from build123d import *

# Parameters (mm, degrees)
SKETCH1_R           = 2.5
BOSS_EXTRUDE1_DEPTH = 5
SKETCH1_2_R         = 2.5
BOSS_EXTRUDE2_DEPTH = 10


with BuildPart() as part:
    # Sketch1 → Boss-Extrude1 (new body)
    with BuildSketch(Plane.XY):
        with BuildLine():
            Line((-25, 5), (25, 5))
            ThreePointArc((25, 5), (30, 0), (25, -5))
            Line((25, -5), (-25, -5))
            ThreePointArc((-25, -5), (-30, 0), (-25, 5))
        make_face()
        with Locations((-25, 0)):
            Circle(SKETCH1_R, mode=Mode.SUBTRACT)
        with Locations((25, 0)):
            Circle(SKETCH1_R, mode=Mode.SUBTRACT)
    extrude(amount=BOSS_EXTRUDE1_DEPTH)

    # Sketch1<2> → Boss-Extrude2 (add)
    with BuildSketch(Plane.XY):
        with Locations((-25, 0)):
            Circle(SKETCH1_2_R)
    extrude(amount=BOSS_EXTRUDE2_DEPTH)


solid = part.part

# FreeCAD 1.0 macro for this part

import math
import FreeCAD as App
import Part
import Sketcher

doc = App.newDocument("Part")
params = doc.addObject("Spreadsheet::Sheet", "Params")
for row, (alias, value) in enumerate([
    ("sketch1_diameter", "5 mm"),
    ("sketch1_radius", "5 mm"),
    ("sketch1_width", "50 mm"),
    ("pad1_length", "5 mm"),
    ("sketch2_diameter", "5 mm"),
    ("pad2_length", "10 mm"),
], start=1):
    params.set(f"A{row}", alias)
    params.set(f"B{row}", "=" + value)
    params.setAlias(f"B{row}", alias)

body = doc.addObject("PartDesign::Body", "Body")

sketch1 = body.newObject("Sketcher::SketchObject", "Sketch")
sketch1.AttachmentSupport = (doc.getObject("XY_Plane"), [""])
sketch1.MapMode = "FlatFace"
sketch1.addGeometry([
    Part.LineSegment(App.Vector(25, 5, 0), App.Vector(-25, 5, 0)),
    Part.ArcOfCircle(Part.Circle(App.Vector(-25, 0, 0), App.Vector(0, 0, 1), 5), math.radians(90), math.radians(270)),
    Part.LineSegment(App.Vector(-25, -5, 0), App.Vector(25, -5, 0)),
    Part.ArcOfCircle(Part.Circle(App.Vector(25, 0, 0), App.Vector(0, 0, 1), 5), math.radians(-90), math.radians(90)),
    Part.Circle(App.Vector(25, 0, 0), App.Vector(0, 0, 1), 2.5),
    Part.Circle(App.Vector(-25, 0, 0), App.Vector(0, 0, 1), 2.5),
], False)
sketch1.addConstraint([
    Sketcher.Constraint("Tangent", 0, 2, 1, 1),
    Sketcher.Constraint("Tangent", 1, 2, 2, 1),
    Sketcher.Constraint("Tangent", 2, 2, 3, 1),
    Sketcher.Constraint("Tangent", 3, 2, 0, 1),
    Sketcher.Constraint("Horizontal", 0),
    Sketcher.Constraint("Horizontal", 2),
    Sketcher.Constraint("Coincident", 4, 3, 3, 3),
    Sketcher.Constraint("Coincident", 5, 3, 1, 3),
    Sketcher.Constraint("Equal", 4, 5),
    Sketcher.Constraint("Symmetric", 1, 3, 3, 3, -1, 1),
    Sketcher.Constraint("Diameter", 4, 5.0),
    Sketcher.Constraint("Radius", 1, 5.0),
    Sketcher.Constraint("DistanceX", 0, 2, 0, 1, 50.0),
])
sketch1.setExpression("Constraints[10]", "Params.sketch1_diameter")
sketch1.setExpression("Constraints[11]", "Params.sketch1_radius")
sketch1.setExpression("Constraints[12]", "Params.sketch1_width")
pad1 = body.newObject("PartDesign::Pad", "Pad")
pad1.Profile = sketch1
pad1.setExpression("Length", "Params.pad1_length")

sketch2 = body.newObject("Sketcher::SketchObject", "Sketch001")
sketch2.AttachmentSupport = (doc.getObject("XY_Plane"), [""])
sketch2.MapMode = "FlatFace"
sketch2.addGeometry(Part.Circle(App.Vector(-25, 0, 0), App.Vector(0, 0, 1), 2.5), False)
sketch2.addConstraint([
    Sketcher.Constraint("PointOnObject", 0, 3, -1),
    Sketcher.Constraint("Diameter", 0, 5.0),
    Sketcher.Constraint("DistanceX", 0, 3, -1, 1, 25.0),
])
sketch2.setExpression("Constraints[1]", "Params.sketch2_diameter")
pad2 = body.newObject("PartDesign::Pad", "Pad001")
pad2.Profile = sketch2
pad2.setExpression("Length", "Params.pad2_length")

doc.recompute()
